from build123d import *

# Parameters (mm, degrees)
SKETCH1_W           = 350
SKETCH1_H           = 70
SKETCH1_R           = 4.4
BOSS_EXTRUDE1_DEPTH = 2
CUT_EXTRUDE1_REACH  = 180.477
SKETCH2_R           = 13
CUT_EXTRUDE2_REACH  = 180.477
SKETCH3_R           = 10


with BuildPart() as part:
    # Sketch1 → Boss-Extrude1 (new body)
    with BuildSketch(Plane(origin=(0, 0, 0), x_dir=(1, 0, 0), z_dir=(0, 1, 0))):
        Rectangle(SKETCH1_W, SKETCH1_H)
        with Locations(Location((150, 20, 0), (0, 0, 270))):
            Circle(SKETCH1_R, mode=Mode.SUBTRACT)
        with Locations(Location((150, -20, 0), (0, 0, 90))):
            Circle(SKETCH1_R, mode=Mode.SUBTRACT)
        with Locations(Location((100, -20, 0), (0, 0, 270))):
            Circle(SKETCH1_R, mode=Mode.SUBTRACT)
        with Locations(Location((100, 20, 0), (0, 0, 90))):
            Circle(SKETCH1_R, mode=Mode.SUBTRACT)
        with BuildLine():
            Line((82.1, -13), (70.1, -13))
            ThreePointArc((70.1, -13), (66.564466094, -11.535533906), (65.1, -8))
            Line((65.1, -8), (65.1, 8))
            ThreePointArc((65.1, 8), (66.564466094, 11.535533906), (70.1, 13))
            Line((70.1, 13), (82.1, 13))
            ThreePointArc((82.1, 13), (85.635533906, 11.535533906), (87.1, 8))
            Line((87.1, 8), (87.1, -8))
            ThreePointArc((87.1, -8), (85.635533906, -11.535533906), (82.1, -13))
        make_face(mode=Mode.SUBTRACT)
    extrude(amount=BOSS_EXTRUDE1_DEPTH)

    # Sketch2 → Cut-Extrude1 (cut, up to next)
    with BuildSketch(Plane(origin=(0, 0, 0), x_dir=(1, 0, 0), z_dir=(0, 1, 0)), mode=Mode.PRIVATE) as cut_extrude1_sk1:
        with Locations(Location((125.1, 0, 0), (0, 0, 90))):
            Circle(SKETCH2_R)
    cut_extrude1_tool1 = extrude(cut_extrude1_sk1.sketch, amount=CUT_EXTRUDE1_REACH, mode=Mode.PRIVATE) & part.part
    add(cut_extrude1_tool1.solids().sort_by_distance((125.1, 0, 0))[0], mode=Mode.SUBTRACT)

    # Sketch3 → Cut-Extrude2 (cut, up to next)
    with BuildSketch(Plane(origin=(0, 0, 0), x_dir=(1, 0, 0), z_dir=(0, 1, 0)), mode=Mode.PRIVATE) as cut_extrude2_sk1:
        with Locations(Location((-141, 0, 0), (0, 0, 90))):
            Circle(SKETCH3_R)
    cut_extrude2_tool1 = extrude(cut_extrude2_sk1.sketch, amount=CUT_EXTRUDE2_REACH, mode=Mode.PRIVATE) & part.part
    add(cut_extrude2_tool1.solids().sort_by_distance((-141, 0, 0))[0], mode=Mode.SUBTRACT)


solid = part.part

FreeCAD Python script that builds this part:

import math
import FreeCAD as App
import Part
import Sketcher

V = App.Vector
Q = App.Units.Quantity

doc = App.newDocument("Part")
body = doc.addObject("PartDesign::Body", "Body")

# Sketch on XZ plane
sketch1 = doc.addObject("Sketcher::SketchObject", "Sketch")
body.addObject(sketch1)
sketch1.AttachmentSupport = (doc.XZ_Plane, [""])
sketch1.MapMode = "FlatFace"
sketch1.addGeometry([
    Part.LineSegment(V(-175, -35, 0), V(-175, 35, 0)),  # 0
    Part.LineSegment(V(-175, 35, 0), V(175, 35, 0)),  # 1
    Part.LineSegment(V(175, 35, 0), V(175, -35, 0)),  # 2
    Part.LineSegment(V(175, -35, 0), V(-175, -35, 0)),  # 3
    Part.Circle(V(100, 20, 0), V(0, 0, 1), 4.4),  # 4
    Part.Circle(V(150, 20, 0), V(0, 0, 1), 4.4),  # 5
    Part.ArcOfCircle(Part.Circle(V(82.1, 8, 0), V(0, 0, 1), 5), math.radians(0), math.radians(90)),  # 6
    Part.LineSegment(V(82.1, 13, 0), V(70.1, 13, 0)),  # 7
    Part.ArcOfCircle(Part.Circle(V(70.1, 8, 0), V(0, 0, 1), 5), math.radians(90), math.radians(180)),  # 8
    Part.LineSegment(V(65.1, 8, 0), V(65.1, -8, 0)),  # 9
    Part.ArcOfCircle(Part.Circle(V(70.1, -8, 0), V(0, 0, 1), 5), math.radians(180), math.radians(270)),  # 10
    Part.LineSegment(V(70.1, -13, 0), V(82.1, -13, 0)),  # 11
    Part.ArcOfCircle(Part.Circle(V(82.1, -8, 0), V(0, 0, 1), 5), math.radians(-90), math.radians(0)),  # 12
    Part.LineSegment(V(87.1, -8, 0), V(87.1, 8, 0)),  # 13
    Part.Circle(V(100, -20, 0), V(0, 0, 1), 4.4),  # 14
    Part.Circle(V(150, -20, 0), V(0, 0, 1), 4.4),  # 15
], False)
sketch1.addConstraint([
    Sketcher.Constraint("Coincident", 0, 2, 1, 1),
    Sketcher.Constraint("Coincident", 1, 2, 2, 1),
    Sketcher.Constraint("Coincident", 2, 2, 3, 1),
    Sketcher.Constraint("Coincident", 3, 2, 0, 1),
    Sketcher.Constraint("Tangent", 6, 2, 7, 1),
    Sketcher.Constraint("Tangent", 7, 2, 8, 1),
    Sketcher.Constraint("Tangent", 8, 2, 9, 1),
    Sketcher.Constraint("Tangent", 9, 2, 10, 1),
    Sketcher.Constraint("Tangent", 10, 2, 11, 1),
    Sketcher.Constraint("Tangent", 11, 2, 12, 1),
    Sketcher.Constraint("Tangent", 12, 2, 13, 1),
    Sketcher.Constraint("Tangent", 13, 2, 6, 1),
    Sketcher.Constraint("Vertical", 0),
    Sketcher.Constraint("Horizontal", 1),
    Sketcher.Constraint("Vertical", 2),
    Sketcher.Constraint("Horizontal", 3),
    Sketcher.Constraint("Horizontal", 7),
    Sketcher.Constraint("Vertical", 9),
    Sketcher.Constraint("Horizontal", 11),
    Sketcher.Constraint("Vertical", 13),
    Sketcher.Constraint("Equal", 4, 5),
    Sketcher.Constraint("Equal", 6, 8),
    Sketcher.Constraint("Equal", 8, 10),
    Sketcher.Constraint("Equal", 10, 12),
    Sketcher.Constraint("Equal", 5, 14),
    Sketcher.Constraint("Equal", 14, 15),
    Sketcher.Constraint("Symmetric", 0, 2, 2, 2, -1, 1),
    Sketcher.Constraint("Symmetric", 4, 3, 14, 3, -1),
    Sketcher.Constraint("Symmetric", 5, 3, 15, 3, -1),
    Sketcher.Constraint("Horizontal", 4, 3, 5, 3),
    Sketcher.Constraint("Radius", 6, Q("5 mm")),
    Sketcher.Constraint("Diameter", 4, Q("8.8 mm")),
    Sketcher.Constraint("DistanceX", 1, 1, 1, 2, Q("350 mm")),
    Sketcher.Constraint("DistanceX", 7, 2, 7, 1, Q("12 mm")),
    Sketcher.Constraint("DistanceY", 0, 1, 0, 2, Q("70 mm")),
    Sketcher.Constraint("DistanceY", 9, 2, 9, 1, Q("16 mm")),
    Sketcher.Constraint("DistanceX", -1, 1, 4, 3, Q("100 mm")),
    Sketcher.Constraint("DistanceY", -1, 1, 4, 3, Q("20 mm")),
    Sketcher.Constraint("DistanceX", -1, 1, 5, 3, Q("150 mm")),
    Sketcher.Constraint("DistanceY", -1, 1, 6, 3, Q("8 mm")),
    Sketcher.Constraint("DistanceX", -1, 1, 6, 3, Q("82.1 mm")),
])
pad1 = doc.addObject("PartDesign::Pad", "Pad")
body.addObject(pad1)
pad1.Profile = sketch1
pad1.Length = 2
pad1.Reversed = True

# Sketch on XZ plane
sketch2 = doc.addObject("Sketcher::SketchObject", "Sketch001")
body.addObject(sketch2)
sketch2.AttachmentSupport = (doc.XZ_Plane, [""])
sketch2.MapMode = "FlatFace"
sketch2.addGeometry(Part.Circle(V(125, 0, 0), V(0, 0, 1), 13), False)
sketch2.addConstraint([
    Sketcher.Constraint("PointOnObject", 0, 3, -1),
    Sketcher.Constraint("Diameter", 0, Q("26 mm")),
    Sketcher.Constraint("DistanceX", -1, 1, 0, 3, Q("125.1 mm")),
])
pocket1 = doc.addObject("PartDesign::Pocket", "Pocket")
body.addObject(pocket1)
pocket1.Profile = sketch2
pocket1.Type = "UpToFirst"

# Sketch on XZ plane
sketch3 = doc.addObject("Sketcher::SketchObject", "Sketch002")
body.addObject(sketch3)
sketch3.AttachmentSupport = (doc.XZ_Plane, [""])
sketch3.MapMode = "FlatFace"
sketch3.addGeometry(Part.Circle(V(-141, 0, 0), V(0, 0, 1), 10), False)
sketch3.addConstraint([
    Sketcher.Constraint("PointOnObject", 0, 3, -1),
    Sketcher.Constraint("Diameter", 0, Q("20 mm")),
    Sketcher.Constraint("DistanceX", 0, 3, -1, 1, Q("141 mm")),
])
pocket2 = doc.addObject("PartDesign::Pocket", "Pocket001")
body.addObject(pocket2)
pocket2.Profile = sketch3
pocket2.Type = "UpToFirst"

doc.recompute()
